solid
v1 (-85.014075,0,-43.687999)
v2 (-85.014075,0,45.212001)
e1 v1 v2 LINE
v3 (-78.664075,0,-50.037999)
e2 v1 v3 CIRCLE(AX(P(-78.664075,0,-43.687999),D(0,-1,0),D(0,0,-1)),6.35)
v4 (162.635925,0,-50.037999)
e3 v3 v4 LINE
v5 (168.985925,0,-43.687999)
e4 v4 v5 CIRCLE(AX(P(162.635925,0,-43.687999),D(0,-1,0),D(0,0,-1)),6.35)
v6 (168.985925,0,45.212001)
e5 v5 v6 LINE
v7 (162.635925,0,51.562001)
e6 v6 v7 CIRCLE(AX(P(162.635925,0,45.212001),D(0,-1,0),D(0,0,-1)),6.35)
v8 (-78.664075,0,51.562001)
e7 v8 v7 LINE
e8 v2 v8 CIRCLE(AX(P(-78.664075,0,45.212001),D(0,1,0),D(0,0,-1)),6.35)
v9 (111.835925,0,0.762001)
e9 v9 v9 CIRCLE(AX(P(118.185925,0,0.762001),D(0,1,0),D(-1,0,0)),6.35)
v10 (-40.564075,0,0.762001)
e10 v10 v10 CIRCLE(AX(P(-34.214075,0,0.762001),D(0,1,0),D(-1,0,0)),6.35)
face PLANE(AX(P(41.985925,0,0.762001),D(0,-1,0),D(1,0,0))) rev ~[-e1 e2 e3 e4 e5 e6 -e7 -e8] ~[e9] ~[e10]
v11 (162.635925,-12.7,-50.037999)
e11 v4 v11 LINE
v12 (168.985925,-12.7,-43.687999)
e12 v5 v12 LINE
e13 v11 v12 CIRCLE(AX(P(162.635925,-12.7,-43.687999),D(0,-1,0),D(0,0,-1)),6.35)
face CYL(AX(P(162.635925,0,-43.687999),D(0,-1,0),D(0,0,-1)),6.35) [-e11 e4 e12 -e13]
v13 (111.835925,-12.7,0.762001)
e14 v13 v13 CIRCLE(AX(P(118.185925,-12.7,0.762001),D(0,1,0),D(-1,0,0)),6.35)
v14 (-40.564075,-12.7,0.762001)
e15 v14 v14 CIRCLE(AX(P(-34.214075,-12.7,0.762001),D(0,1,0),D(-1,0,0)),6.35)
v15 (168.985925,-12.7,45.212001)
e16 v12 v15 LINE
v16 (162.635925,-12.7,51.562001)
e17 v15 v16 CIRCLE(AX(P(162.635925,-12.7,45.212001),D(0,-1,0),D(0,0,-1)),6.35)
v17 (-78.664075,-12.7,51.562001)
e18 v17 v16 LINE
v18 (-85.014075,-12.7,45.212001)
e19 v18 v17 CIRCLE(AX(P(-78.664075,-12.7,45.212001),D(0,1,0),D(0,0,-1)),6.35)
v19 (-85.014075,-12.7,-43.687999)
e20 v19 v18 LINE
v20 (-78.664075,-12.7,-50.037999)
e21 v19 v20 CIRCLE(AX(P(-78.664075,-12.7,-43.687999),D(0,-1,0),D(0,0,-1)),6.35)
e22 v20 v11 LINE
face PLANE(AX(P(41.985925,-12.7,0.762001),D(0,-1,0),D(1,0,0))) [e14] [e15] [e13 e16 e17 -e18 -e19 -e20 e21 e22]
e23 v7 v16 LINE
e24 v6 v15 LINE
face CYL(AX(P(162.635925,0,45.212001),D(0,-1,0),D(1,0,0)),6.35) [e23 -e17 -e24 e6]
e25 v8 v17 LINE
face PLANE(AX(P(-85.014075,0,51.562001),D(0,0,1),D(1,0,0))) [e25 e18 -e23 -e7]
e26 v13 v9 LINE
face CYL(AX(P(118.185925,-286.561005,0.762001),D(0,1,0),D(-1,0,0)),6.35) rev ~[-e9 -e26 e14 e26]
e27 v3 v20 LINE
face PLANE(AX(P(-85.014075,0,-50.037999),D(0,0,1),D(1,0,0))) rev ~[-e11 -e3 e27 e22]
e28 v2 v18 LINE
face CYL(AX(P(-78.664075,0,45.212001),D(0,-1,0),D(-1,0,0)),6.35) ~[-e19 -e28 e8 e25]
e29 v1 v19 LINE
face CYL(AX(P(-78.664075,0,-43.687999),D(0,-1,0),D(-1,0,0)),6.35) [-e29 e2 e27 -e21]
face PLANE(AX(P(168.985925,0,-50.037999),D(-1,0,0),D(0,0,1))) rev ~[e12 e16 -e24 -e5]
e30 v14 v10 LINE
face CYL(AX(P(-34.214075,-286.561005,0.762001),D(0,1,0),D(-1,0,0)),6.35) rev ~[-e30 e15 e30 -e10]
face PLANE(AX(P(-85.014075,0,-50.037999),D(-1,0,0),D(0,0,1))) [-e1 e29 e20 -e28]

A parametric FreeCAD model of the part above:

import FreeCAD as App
import Part
import Sketcher

V = App.Vector
Q = App.Units.Quantity


def edges_at(feature, points):
    """Names of the edges that pass closest to the given points."""
    edges = feature.Shape.Edges
    near = lambda p: min(range(len(edges)), key=lambda i: edges[i].distToShape(Part.Vertex(*p))[0])
    return sorted({f"Edge{near(p) + 1}" for p in points})


def add_polygon(sketch, points):
    """Adds a closed chain of lines whose ends are joined by coincident constraints."""
    first, n = sketch.GeometryCount, len(points)
    for a, b in zip(points, points[1:] + points[:1]):
        sketch.addGeometry(Part.LineSegment(App.Vector(*a, 0), App.Vector(*b, 0)), False)
    for i in range(n):
        sketch.addConstraint(Sketcher.Constraint("Coincident", first + i, 2, first + (i + 1) % n, 1))

doc = App.newDocument("Part")
body = doc.addObject("PartDesign::Body", "Body")

sketch1 = body.newObject("Sketcher::SketchObject", "Sketch")
sketch1.AttachmentSupport = (doc.getObject("XZ_Plane"), [""])
sketch1.MapMode = "FlatFace"
add_polygon(sketch1, [(-85, 52), (-85, -50), (169, -50), (169, 52)])
sketch1.addConstraint([
    Sketcher.Constraint("Vertical", 0),
    Sketcher.Constraint("Horizontal", 1),
    Sketcher.Constraint("Vertical", 2),
    Sketcher.Constraint("Horizontal", 3),
    Sketcher.Constraint("DistanceX", 1, 1, 1, 2, Q("10 in")),
    Sketcher.Constraint("DistanceY", 0, 2, 0, 1, Q("4 in")),
    Sketcher.Constraint("DistanceY", 0, 2, -1, 1, Q("1.97 in")),
    Sketcher.Constraint("DistanceX", 0, 2, -1, 1, 85.014075),
])
pad1 = body.newObject("PartDesign::Pad", "Pad")
pad1.Profile = sketch1
pad1.Length = Q("0.5 in")
doc.recompute()

fillet = body.newObject("PartDesign::Fillet", "Fillet")
fillet.Base = (pad1, edges_at(pad1, [
    (-85.014, -6.35, 51.562),
    (168.986, -6.35, 51.562),
    (168.986, -6.35, -50.038),
    (-85.014, -6.35, -50.038),
]))
fillet.Radius = Q("0.25 in")

sketch2 = body.newObject("Sketcher::SketchObject", "Sketch001")
sketch2.AttachmentSupport = (doc.getObject("XZ_Plane"), [""])
sketch2.MapMode = "FlatFace"
sketch2.AttachmentOffset = App.Placement(V(0, 0, 0.5 * 25.4), App.Rotation())
sketch2.addGeometry([
    Part.Circle(V(-34, 1, 0), V(0, 0, 1), 6),
    Part.Circle(V(118, 1, 0), V(0, 0, 1), 6),
], False)
sketch2.addConstraint([
    Sketcher.Constraint("Equal", 0, 1),
    Sketcher.Constraint("Horizontal", 0, 3, 1, 3),
    Sketcher.Constraint("Diameter", 0, Q("0.5 in")),
    Sketcher.Constraint("DistanceX", 0, 3, 1, 3, Q("6 in")),
    Sketcher.Constraint("DistanceY", -1, 1, 0, 3, Q("0.03 in")),
    Sketcher.Constraint("DistanceX", 0, 3, -1, 1, 34.214075),
])
doc.recompute()
hole = body.newObject("PartDesign::Hole", "Hole")
hole.Profile = sketch2
hole.ThreadType = "None"
hole.Diameter = Q("0.5 in")
hole.DepthType = "ThroughAll"

doc.recompute()
